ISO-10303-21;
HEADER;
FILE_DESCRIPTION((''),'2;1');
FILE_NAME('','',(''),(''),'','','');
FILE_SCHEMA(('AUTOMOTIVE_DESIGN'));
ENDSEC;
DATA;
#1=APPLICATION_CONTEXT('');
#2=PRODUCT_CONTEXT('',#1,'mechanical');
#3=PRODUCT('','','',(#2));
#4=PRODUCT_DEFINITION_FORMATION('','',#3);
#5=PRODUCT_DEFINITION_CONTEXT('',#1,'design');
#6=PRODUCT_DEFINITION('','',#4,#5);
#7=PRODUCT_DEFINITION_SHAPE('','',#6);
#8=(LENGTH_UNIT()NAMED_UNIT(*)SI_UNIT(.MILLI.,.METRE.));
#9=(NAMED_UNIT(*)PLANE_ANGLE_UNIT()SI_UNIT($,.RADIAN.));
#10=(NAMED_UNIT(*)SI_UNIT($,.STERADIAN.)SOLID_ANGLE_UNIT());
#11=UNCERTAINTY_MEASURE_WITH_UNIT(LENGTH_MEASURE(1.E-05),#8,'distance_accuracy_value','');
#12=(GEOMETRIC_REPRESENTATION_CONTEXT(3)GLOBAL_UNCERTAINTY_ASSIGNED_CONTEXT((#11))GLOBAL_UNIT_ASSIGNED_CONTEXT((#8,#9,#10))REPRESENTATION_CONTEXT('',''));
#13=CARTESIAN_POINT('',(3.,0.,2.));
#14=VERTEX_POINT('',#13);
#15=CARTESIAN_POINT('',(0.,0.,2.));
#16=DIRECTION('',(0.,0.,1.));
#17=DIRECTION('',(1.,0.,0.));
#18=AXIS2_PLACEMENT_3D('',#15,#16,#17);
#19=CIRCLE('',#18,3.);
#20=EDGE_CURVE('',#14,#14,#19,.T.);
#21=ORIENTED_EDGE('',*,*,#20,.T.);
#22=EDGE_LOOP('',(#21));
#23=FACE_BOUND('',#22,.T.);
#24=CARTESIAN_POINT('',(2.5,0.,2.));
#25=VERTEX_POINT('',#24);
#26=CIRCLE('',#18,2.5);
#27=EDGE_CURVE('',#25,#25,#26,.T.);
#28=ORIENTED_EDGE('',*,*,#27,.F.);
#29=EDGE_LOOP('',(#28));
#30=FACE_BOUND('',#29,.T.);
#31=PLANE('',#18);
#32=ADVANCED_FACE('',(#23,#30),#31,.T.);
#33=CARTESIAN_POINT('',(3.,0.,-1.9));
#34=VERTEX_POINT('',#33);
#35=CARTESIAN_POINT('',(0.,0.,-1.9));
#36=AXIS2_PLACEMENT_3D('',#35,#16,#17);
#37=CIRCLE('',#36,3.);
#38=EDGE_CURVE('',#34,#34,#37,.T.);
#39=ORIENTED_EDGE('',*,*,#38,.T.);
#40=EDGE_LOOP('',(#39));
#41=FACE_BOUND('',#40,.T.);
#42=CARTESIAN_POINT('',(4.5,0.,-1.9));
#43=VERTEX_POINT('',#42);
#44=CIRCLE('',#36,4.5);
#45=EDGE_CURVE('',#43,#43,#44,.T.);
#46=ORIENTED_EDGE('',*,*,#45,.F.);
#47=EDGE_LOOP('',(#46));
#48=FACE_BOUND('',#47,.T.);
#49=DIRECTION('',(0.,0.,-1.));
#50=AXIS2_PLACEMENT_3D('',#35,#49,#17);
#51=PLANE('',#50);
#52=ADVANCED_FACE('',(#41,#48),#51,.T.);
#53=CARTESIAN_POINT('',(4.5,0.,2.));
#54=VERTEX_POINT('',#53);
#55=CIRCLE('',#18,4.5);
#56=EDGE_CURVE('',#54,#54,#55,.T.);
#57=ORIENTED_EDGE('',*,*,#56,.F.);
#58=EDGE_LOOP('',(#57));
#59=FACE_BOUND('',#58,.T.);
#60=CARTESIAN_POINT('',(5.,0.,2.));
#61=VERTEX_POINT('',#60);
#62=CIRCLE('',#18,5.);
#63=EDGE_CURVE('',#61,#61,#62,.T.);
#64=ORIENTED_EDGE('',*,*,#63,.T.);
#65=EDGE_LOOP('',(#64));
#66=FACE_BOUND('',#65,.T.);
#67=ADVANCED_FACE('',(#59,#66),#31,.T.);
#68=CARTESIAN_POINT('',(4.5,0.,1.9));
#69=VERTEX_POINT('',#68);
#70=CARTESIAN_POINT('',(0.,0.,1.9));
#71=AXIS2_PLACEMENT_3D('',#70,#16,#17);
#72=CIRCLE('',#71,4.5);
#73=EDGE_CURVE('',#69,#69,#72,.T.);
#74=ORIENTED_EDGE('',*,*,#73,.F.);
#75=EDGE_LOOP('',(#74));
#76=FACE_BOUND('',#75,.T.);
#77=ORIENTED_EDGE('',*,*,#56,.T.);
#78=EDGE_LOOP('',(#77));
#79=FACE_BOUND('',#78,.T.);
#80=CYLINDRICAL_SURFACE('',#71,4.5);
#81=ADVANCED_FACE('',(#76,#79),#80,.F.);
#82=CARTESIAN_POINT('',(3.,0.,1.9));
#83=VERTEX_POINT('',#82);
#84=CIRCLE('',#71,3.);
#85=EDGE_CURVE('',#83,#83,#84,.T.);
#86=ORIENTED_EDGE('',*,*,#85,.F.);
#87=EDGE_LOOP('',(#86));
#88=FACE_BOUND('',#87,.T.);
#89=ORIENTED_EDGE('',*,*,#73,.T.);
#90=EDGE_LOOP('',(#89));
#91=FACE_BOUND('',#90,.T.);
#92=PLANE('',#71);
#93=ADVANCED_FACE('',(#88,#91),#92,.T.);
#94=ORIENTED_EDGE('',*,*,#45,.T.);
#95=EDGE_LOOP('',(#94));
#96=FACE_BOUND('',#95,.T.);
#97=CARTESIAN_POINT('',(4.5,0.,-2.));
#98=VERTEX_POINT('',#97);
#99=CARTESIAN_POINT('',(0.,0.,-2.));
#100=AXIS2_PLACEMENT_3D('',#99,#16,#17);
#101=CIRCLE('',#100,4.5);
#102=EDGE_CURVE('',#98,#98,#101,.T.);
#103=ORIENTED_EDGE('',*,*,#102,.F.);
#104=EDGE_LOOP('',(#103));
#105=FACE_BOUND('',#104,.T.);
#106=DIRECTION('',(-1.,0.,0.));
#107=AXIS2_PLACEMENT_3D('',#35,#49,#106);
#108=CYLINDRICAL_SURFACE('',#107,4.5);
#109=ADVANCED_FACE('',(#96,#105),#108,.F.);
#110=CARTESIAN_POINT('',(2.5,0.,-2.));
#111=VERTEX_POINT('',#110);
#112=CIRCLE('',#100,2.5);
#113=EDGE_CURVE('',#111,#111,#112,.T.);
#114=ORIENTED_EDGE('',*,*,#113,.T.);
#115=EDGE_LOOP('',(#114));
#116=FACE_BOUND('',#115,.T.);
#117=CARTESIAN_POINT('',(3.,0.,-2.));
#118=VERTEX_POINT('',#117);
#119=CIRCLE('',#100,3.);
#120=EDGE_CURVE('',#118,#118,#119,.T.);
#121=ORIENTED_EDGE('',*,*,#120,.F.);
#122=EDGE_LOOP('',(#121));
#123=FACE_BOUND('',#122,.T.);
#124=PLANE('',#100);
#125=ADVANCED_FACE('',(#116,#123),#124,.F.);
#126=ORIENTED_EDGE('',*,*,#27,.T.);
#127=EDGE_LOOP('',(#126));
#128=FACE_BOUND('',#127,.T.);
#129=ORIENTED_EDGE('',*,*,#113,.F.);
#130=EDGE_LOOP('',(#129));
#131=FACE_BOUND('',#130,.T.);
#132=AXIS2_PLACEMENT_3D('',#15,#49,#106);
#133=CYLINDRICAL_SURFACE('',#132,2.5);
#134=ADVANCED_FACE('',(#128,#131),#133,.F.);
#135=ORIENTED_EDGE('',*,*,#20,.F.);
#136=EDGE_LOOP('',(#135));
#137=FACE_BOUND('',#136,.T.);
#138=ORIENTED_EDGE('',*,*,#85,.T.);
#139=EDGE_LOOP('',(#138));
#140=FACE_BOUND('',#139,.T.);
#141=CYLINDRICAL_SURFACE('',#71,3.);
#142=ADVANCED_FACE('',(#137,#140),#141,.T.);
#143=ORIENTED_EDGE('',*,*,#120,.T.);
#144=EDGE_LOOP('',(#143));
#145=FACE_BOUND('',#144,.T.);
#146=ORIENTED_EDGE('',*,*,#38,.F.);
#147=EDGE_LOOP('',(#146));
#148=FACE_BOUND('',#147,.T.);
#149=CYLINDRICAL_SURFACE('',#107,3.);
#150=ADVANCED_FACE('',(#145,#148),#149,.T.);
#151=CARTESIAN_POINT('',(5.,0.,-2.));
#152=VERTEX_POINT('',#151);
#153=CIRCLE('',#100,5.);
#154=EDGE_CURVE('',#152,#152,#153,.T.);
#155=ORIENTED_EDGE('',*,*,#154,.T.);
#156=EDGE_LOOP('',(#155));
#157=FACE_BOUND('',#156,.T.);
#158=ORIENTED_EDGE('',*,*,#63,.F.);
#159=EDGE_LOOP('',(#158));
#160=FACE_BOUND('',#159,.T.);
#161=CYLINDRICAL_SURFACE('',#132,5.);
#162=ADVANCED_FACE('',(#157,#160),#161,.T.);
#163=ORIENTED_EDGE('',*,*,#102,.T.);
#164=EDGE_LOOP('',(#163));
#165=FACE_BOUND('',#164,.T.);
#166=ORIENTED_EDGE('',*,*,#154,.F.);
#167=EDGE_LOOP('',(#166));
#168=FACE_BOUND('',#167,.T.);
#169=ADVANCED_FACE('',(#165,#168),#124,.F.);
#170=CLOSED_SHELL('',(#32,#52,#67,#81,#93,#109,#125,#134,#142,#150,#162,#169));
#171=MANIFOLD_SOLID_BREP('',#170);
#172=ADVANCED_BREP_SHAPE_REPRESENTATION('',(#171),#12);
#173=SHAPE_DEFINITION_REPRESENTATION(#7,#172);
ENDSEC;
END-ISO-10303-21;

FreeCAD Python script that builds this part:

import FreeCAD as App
import Part
import Sketcher

doc = App.newDocument("Part")
body = doc.addObject("PartDesign::Body", "Body")

# Sketch on XY plane
sketch1 = body.newObject("Sketcher::SketchObject", "Sketch")
sketch1.AttachmentSupport = (doc.getObject("XY_Plane"), [""])
sketch1.MapMode = "FlatFace"
sketch1.addGeometry(Part.Circle(App.Vector(0, 0, 0), App.Vector(0, 0, 1), 5), False)
sketch1.addGeometry(Part.Circle(App.Vector(0, 0, 0), App.Vector(0, 0, 1), 2.5), False)
sketch1.addConstraint(Sketcher.Constraint("Coincident", 0, 3, -1, 1))
sketch1.addConstraint(Sketcher.Constraint("Coincident", 1, 3, -1, 1))
sketch1.addConstraint(Sketcher.Constraint("Diameter", 0, 10.0))
sketch1.addConstraint(Sketcher.Constraint("Diameter", 1, 5.0))
pad1 = body.newObject("PartDesign::Pad", "Pad")
pad1.Profile = sketch1
pad1.Length = 4
pad1.Midplane = True

# Sketch on XY plane
sketch2 = body.newObject("Sketcher::SketchObject", "Sketch001")
sketch2.AttachmentSupport = (doc.getObject("XY_Plane"), [""])
sketch2.MapMode = "FlatFace"
sketch2.AttachmentOffset = App.Placement(App.Vector(0, 0, 2), App.Rotation())
sketch2.addGeometry(Part.Circle(App.Vector(0, 0, 0), App.Vector(0, 0, 1), 4.5), False)
sketch2.addGeometry(Part.Circle(App.Vector(0, 0, 0), App.Vector(0, 0, 1), 3), False)
sketch2.addConstraint(Sketcher.Constraint("Coincident", 0, 3, -1, 1))
sketch2.addConstraint(Sketcher.Constraint("Coincident", 1, 3, -1, 1))
sketch2.addConstraint(Sketcher.Constraint("Diameter", 0, 9.0))
sketch2.addConstraint(Sketcher.Constraint("Diameter", 1, 6.0))
pocket1 = body.newObject("PartDesign::Pocket", "Pocket")
pocket1.Profile = sketch2
pocket1.Length = 0.1
doc.recompute()

mirrored = body.newObject("PartDesign::Mirrored", "Mirrored")
mirrored.Originals = [pocket1]
mirrored.MirrorPlane = (doc.getObject("XY_Plane"), [""])
body.Tip = mirrored

doc.recompute()
